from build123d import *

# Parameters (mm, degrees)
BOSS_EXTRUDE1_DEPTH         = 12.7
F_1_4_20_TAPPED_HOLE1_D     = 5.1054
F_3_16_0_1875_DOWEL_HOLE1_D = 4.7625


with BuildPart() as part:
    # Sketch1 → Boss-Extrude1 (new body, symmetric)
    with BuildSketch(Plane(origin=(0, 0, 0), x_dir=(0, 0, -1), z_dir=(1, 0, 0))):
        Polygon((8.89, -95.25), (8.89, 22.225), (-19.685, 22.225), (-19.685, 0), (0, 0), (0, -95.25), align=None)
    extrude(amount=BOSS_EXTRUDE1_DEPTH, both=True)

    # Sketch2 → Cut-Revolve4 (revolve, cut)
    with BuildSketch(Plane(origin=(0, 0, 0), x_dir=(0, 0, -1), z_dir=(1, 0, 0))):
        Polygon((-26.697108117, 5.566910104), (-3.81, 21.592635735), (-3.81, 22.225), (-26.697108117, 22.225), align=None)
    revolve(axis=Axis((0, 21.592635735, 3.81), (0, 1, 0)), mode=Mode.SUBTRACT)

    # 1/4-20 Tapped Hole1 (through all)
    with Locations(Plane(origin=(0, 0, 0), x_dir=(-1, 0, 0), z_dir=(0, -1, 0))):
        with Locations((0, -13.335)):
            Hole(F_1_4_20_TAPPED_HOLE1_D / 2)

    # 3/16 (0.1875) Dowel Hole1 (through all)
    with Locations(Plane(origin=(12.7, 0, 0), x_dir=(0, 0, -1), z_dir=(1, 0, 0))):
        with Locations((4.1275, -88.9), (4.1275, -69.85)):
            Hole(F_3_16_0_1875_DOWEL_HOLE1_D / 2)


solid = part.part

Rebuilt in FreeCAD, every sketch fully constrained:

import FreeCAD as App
import Part
import Sketcher
from FreeCAD import Vector
Q = App.Units.Quantity

doc = App.newDocument("Part")
body = doc.addObject("PartDesign::Body", "Body")

# Sketch on YZ plane
sketch1 = body.newObject("Sketcher::SketchObject", "Sketch")
sketch1.AttachmentSupport = (doc.getObject("YZ_Plane"), [""])
sketch1.MapMode = "FlatFace"
sketch1.addGeometry([
    Part.LineSegment(Vector(-95.25, -8.89, 0), Vector(22.225, -8.89, 0)),  # 0
    Part.LineSegment(Vector(22.225, -8.89, 0), Vector(22.225, 19.685, 0)),  # 1
    Part.LineSegment(Vector(22.225, 19.685, 0), Vector(0, 19.685, 0)),  # 2
    Part.LineSegment(Vector(0, 19.685, 0), Vector(0, 0, 0)),  # 3
    Part.LineSegment(Vector(0, 0, 0), Vector(-95.25, 0, 0)),  # 4
    Part.LineSegment(Vector(-95.25, 0, 0), Vector(-95.25, -8.89, 0)),  # 5
], False)
sketch1.addConstraint([
    Sketcher.Constraint("Coincident", 0, 2, 1, 1),
    Sketcher.Constraint("Coincident", 1, 2, 2, 1),
    Sketcher.Constraint("Coincident", 2, 2, 3, 1),
    Sketcher.Constraint("Coincident", 3, 2, 4, 1),
    Sketcher.Constraint("Coincident", 4, 2, 5, 1),
    Sketcher.Constraint("Coincident", 5, 2, 0, 1),
    Sketcher.Constraint("Horizontal", 0),
    Sketcher.Constraint("Vertical", 1),
    Sketcher.Constraint("Horizontal", 2),
    Sketcher.Constraint("Vertical", 3),
    Sketcher.Constraint("Horizontal", 4),
    Sketcher.Constraint("Vertical", 5),
    Sketcher.Constraint("Coincident", 3, 2, -1, 1),
    Sketcher.Constraint("DistanceX", 4, 2, 4, 1, Q("3.75 in")),
    Sketcher.Constraint("DistanceY", 5, 2, 5, 1, Q("0.35 in")),
    Sketcher.Constraint("DistanceX", 0, 1, 0, 2, Q("4.625 in")),
    Sketcher.Constraint("DistanceY", 1, 1, 1, 2, Q("1.125 in")),
])
pad1 = body.newObject("PartDesign::Pad", "Pad")
pad1.Profile = sketch1
pad1.Length = Q("1 in")
pad1.Midplane = True

# Sketch on YZ plane
sketch2 = body.newObject("Sketcher::SketchObject", "Sketch001")
sketch2.AttachmentSupport = (doc.getObject("YZ_Plane"), [""])
sketch2.MapMode = "FlatFace"
sketch2.addGeometry([
    Part.LineSegment(Vector(5.56691, 26.697108, 0), Vector(21.592636, 3.81, 0)),
    Part.LineSegment(Vector(21.592636, 3.81, 0), Vector(22.225, 3.81, 0)),
    Part.LineSegment(Vector(22.225, 3.81, 0), Vector(22.225, 26.697108, 0)),
    Part.LineSegment(Vector(22.225, 26.697108, 0), Vector(5.56691, 26.697108, 0)),
], False)
sketch2.addGeometry(Part.LineSegment(Vector(5.56691, 3.81, 0), Vector(22.225, 3.81, 0)), True)  # axis
sketch2.addConstraint([
    Sketcher.Constraint("Coincident", 0, 2, 1, 1),
    Sketcher.Constraint("Coincident", 1, 2, 2, 1),
    Sketcher.Constraint("Coincident", 2, 2, 3, 1),
    Sketcher.Constraint("Coincident", 3, 2, 0, 1),
    Sketcher.Constraint("Horizontal", 1),
    Sketcher.Constraint("Vertical", 2),
    Sketcher.Constraint("Horizontal", 3),
    Sketcher.Constraint("Horizontal", 4),
    Sketcher.Constraint("Coincident", 4, 2, 1, 2),
    Sketcher.Constraint("Vertical", 3, 2, 4, 1),
    Sketcher.Constraint("Angle", 0, Q("-55 deg")),
    Sketcher.Constraint("Distance", 0, Q("1.1 in")),
    Sketcher.Constraint("DistanceY", -1, 1, 0, 2, Q("0.15 in")),
    Sketcher.Constraint("DistanceX", -1, 1, 1, 2, Q("0.875 in")),
    Sketcher.Constraint("DistanceX", 3, 2, 3, 1, 16.65809),
])
groove = body.newObject("PartDesign::Groove", "Groove")
groove.Profile = sketch2
groove.ReferenceAxis = (sketch2, ["Axis0"])
groove.Angle = 360

# Sketch on XZ plane
sketch3 = body.newObject("Sketcher::SketchObject", "Sketch002")
sketch3.AttachmentSupport = (doc.getObject("XZ_Plane"), [""])
sketch3.MapMode = "FlatFace"
sketch3.addGeometry(Part.Circle(Vector(0, 13.335, 0), Vector(0, 0, 1), 2.5527), False)
sketch3.addConstraint([
    Sketcher.Constraint("PointOnObject", 0, 3, -2),
    Sketcher.Constraint("Diameter", 0, Q("0.201 in")),
    Sketcher.Constraint("DistanceY", -1, 1, 0, 3, Q("0.525 in")),
])
doc.recompute()
hole = body.newObject("PartDesign::Hole", "Hole")
hole.Profile = sketch3
hole.ThreadType = "None"
hole.Diameter = Q("0.201 in")
hole.DepthType = "ThroughAll"

# Sketch on YZ plane
sketch4 = body.newObject("Sketcher::SketchObject", "Sketch003")
sketch4.AttachmentSupport = (doc.getObject("YZ_Plane"), [""])
sketch4.MapMode = "FlatFace"
sketch4.AttachmentOffset = App.Placement(Vector(0, 0, 0.5 * 25.4), App.Rotation())
sketch4.addGeometry([
    Part.Circle(Vector(-88.9, -4.1275, 0), Vector(0, 0, 1), 2.38125),
    Part.Circle(Vector(-69.85, -4.1275, 0), Vector(0, 0, 1), 2.38125),
], False)
sketch4.addConstraint([
    Sketcher.Constraint("Equal", 0, 1),
    Sketcher.Constraint("Horizontal", 0, 3, 1, 3),
    Sketcher.Constraint("Diameter", 0, Q("0.1875 in")),
    Sketcher.Constraint("DistanceX", 0, 3, -1, 1, Q("3.5 in")),
    Sketcher.Constraint("DistanceX", 1, 3, -1, 1, Q("2.75 in")),
    Sketcher.Constraint("DistanceY", 0, 3, -1, 1, Q("0.1625 in")),
])
doc.recompute()
hole2 = body.newObject("PartDesign::Hole", "Hole001")
hole2.Profile = sketch4
hole2.ThreadType = "None"
hole2.Diameter = Q("0.1875 in")
hole2.DepthType = "ThroughAll"

doc.recompute()
